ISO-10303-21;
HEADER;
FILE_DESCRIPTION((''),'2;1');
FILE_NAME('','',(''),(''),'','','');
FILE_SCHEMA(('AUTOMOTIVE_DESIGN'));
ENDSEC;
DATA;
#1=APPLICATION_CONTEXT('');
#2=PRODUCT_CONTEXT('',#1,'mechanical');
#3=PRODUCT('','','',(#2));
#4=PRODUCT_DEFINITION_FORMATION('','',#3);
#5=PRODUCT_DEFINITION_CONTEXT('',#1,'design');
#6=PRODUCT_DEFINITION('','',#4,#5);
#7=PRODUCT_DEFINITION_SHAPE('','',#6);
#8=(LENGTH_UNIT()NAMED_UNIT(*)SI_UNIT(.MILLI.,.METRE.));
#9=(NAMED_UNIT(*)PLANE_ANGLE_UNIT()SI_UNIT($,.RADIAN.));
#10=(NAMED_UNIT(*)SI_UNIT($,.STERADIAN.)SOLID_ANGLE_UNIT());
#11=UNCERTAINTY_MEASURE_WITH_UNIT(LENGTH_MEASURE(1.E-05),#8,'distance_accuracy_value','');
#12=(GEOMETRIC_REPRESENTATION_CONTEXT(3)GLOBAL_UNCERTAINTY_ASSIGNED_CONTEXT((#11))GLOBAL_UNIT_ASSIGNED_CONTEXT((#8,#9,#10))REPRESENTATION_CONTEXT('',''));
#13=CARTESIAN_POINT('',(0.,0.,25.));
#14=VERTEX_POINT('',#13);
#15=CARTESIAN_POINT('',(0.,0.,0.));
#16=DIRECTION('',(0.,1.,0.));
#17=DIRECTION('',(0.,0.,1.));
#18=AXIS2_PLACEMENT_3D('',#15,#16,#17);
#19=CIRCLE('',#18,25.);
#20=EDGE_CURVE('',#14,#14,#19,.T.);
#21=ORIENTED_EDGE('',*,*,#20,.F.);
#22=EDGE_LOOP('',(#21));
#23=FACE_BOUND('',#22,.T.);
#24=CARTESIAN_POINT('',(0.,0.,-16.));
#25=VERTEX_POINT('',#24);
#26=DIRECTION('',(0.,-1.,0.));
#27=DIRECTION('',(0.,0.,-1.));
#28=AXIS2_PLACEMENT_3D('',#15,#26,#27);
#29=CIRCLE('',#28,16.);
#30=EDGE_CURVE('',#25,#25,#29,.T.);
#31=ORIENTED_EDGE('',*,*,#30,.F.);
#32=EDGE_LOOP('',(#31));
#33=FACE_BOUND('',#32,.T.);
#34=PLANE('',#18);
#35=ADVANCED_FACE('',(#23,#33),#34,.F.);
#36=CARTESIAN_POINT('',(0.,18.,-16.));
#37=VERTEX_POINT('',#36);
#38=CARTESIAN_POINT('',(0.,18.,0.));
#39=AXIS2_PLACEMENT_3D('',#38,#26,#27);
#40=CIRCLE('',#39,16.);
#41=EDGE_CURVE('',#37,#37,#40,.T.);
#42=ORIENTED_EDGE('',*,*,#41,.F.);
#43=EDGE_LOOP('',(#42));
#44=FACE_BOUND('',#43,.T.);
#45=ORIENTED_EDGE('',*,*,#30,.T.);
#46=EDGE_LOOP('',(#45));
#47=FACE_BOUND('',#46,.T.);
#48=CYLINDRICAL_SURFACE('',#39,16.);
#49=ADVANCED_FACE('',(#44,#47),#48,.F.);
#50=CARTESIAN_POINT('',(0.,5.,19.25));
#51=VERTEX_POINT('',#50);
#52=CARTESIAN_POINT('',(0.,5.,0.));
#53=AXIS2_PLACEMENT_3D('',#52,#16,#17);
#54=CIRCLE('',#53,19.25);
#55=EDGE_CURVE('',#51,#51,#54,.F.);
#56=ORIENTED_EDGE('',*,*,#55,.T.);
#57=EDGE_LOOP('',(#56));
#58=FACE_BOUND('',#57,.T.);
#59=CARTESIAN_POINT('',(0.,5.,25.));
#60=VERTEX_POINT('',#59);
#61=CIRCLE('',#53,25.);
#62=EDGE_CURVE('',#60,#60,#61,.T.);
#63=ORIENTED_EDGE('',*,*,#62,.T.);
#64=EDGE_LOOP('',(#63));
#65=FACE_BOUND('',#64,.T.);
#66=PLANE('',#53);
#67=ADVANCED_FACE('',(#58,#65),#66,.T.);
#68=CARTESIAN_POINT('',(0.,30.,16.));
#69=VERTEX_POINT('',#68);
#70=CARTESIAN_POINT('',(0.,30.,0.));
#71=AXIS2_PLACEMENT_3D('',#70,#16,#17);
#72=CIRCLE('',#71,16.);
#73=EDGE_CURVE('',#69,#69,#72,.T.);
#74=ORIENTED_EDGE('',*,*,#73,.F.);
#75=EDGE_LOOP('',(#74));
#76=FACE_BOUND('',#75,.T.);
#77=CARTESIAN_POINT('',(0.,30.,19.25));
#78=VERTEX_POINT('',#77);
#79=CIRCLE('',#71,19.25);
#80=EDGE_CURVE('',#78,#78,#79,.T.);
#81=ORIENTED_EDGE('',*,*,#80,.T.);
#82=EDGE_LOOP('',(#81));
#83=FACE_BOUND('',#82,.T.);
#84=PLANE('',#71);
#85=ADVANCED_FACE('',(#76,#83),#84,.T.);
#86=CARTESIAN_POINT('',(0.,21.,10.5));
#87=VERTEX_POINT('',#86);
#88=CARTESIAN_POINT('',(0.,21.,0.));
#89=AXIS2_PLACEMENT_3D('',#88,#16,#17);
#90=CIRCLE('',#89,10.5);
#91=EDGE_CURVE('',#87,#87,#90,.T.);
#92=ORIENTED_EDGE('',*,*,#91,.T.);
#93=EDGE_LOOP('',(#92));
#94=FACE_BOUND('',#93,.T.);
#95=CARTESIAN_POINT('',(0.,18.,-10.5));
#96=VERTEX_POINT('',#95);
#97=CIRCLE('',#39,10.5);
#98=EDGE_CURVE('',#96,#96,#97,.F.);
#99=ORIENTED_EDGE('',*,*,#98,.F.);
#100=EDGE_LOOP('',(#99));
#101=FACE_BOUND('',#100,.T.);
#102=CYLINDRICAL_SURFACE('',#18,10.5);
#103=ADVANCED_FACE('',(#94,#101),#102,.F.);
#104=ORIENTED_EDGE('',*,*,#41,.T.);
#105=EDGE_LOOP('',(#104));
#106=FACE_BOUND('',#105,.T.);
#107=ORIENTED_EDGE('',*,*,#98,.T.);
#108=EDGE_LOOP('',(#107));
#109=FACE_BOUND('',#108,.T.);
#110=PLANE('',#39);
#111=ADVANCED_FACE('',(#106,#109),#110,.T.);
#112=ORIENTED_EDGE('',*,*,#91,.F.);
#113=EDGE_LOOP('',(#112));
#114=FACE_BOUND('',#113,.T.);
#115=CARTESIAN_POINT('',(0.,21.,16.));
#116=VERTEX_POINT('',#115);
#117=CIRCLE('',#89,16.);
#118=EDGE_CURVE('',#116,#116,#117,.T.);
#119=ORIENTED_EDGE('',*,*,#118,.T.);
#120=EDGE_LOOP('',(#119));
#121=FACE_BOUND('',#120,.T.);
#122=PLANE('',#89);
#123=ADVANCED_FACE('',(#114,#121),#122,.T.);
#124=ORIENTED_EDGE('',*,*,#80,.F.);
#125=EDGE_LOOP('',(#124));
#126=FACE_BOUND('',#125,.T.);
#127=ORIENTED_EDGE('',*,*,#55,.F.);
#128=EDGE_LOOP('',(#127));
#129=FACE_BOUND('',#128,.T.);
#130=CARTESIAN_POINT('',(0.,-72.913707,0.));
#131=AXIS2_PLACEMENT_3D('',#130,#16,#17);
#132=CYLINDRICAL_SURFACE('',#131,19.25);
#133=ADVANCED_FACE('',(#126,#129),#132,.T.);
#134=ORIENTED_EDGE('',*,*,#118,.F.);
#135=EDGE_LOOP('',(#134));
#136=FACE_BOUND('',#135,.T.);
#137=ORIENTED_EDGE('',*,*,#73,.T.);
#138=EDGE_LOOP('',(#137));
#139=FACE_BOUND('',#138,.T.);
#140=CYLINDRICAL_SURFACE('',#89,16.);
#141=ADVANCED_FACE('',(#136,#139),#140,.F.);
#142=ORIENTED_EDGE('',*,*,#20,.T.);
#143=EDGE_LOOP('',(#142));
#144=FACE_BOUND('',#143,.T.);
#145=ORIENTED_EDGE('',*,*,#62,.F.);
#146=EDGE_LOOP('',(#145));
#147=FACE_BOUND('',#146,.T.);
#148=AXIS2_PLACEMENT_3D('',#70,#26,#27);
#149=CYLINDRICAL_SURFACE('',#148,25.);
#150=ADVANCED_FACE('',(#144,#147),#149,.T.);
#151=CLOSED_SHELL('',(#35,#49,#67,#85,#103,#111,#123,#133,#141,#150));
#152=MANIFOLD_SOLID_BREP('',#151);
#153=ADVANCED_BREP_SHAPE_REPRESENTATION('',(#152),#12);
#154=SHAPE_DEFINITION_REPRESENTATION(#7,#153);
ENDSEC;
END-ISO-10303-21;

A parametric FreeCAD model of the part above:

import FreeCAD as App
import Part
import Sketcher

doc = App.newDocument("Part")
params = doc.addObject("Spreadsheet::Sheet", "Params")
for row, (alias, value) in enumerate([
    ("sketch1_diameter", "50 mm"),
    ("pad1_length", "30 mm"),
    ("sketch2_diameter", "38.5 mm"),
    ("pocket1_length", "25 mm"),
    ("sketch3_diameter", "32 mm"),
    ("pocket2_length", "9 mm"),
    ("sketch4_diameter", "21 mm"),
    ("sketch5_diameter", "32 mm"),
    ("pocket4_length", "18 mm"),
], start=1):
    params.set(f"A{row}", alias)
    params.set(f"B{row}", "=" + value)
    params.setAlias(f"B{row}", alias)

body = doc.addObject("PartDesign::Body", "Body")

sketch1 = body.newObject("Sketcher::SketchObject", "Sketch")
sketch1.AttachmentSupport = (doc.getObject("XZ_Plane"), [""])
sketch1.MapMode = "FlatFace"
sketch1.addGeometry(Part.Circle(App.Vector(0, 0, 0), App.Vector(0, 0, 1), 25), False)
sketch1.addConstraint(Sketcher.Constraint("Coincident", 0, 3, -1, 1))
sketch1.addConstraint(Sketcher.Constraint("Diameter", 0, 50.0))
sketch1.setExpression("Constraints[1]", "Params.sketch1_diameter")
pad1 = body.newObject("PartDesign::Pad", "Pad")
pad1.Profile = sketch1
pad1.setExpression("Length", "Params.pad1_length")
pad1.Reversed = True

sketch2 = body.newObject("Sketcher::SketchObject", "Sketch001")
sketch2.AttachmentSupport = (doc.getObject("XZ_Plane"), [""])
sketch2.MapMode = "FlatFace"
sketch2.AttachmentOffset = App.Placement(App.Vector(0, 0, -30), App.Rotation())
sketch2.addGeometry(Part.LineSegment(App.Vector(-34, -34, 0), App.Vector(-34, 34, 0)), False)
sketch2.addGeometry(Part.LineSegment(App.Vector(-34, 34, 0), App.Vector(34, 34, 0)), False)
sketch2.addGeometry(Part.LineSegment(App.Vector(34, 34, 0), App.Vector(34, -34, 0)), False)
sketch2.addGeometry(Part.LineSegment(App.Vector(34, -34, 0), App.Vector(-34, -34, 0)), False)
sketch2.addGeometry(Part.Circle(App.Vector(0, 0, 0), App.Vector(0, 0, 1), 19), False)
sketch2.addConstraint(Sketcher.Constraint("Coincident", 0, 2, 1, 1))
sketch2.addConstraint(Sketcher.Constraint("Coincident", 1, 2, 2, 1))
sketch2.addConstraint(Sketcher.Constraint("Coincident", 2, 2, 3, 1))
sketch2.addConstraint(Sketcher.Constraint("Coincident", 3, 2, 0, 1))
sketch2.addConstraint(Sketcher.Constraint("Vertical", 0))
sketch2.addConstraint(Sketcher.Constraint("Horizontal", 1))
sketch2.addConstraint(Sketcher.Constraint("Vertical", 2))
sketch2.addConstraint(Sketcher.Constraint("Horizontal", 3))
sketch2.addConstraint(Sketcher.Constraint("Coincident", 4, 3, -1, 1))
sketch2.addConstraint(Sketcher.Constraint("Symmetric", 0, 2, 2, 2, -1, 1))
sketch2.addConstraint(Sketcher.Constraint("Equal", 3, 0))
sketch2.addConstraint(Sketcher.Constraint("Diameter", 4, 38.5))
sketch2.addConstraint(Sketcher.Constraint("DistanceX", 1, 1, 1, 2, 67.362))
sketch2.setExpression("Constraints[11]", "Params.sketch2_diameter")
pocket1 = body.newObject("PartDesign::Pocket", "Pocket")
pocket1.Profile = sketch2
pocket1.setExpression("Length", "Params.pocket1_length")
pocket1.Reversed = True

sketch3 = body.newObject("Sketcher::SketchObject", "Sketch002")
sketch3.AttachmentSupport = (doc.getObject("XZ_Plane"), [""])
sketch3.MapMode = "FlatFace"
sketch3.AttachmentOffset = App.Placement(App.Vector(0, 0, -30), App.Rotation())
sketch3.addGeometry(Part.Circle(App.Vector(0, 0, 0), App.Vector(0, 0, 1), 16), False)
sketch3.addConstraint(Sketcher.Constraint("Coincident", 0, 3, -1, 1))
sketch3.addConstraint(Sketcher.Constraint("Diameter", 0, 32.0))
sketch3.setExpression("Constraints[1]", "Params.sketch3_diameter")
pocket2 = body.newObject("PartDesign::Pocket", "Pocket001")
pocket2.Profile = sketch3
pocket2.setExpression("Length", "Params.pocket2_length")
pocket2.Reversed = True

sketch4 = body.newObject("Sketcher::SketchObject", "Sketch003")
sketch4.AttachmentSupport = (doc.getObject("XZ_Plane"), [""])
sketch4.MapMode = "FlatFace"
sketch4.AttachmentOffset = App.Placement(App.Vector(0, 0, -21), App.Rotation())
sketch4.addGeometry(Part.Circle(App.Vector(0, 0, 0), App.Vector(0, 0, 1), 10), False)
sketch4.addConstraint(Sketcher.Constraint("Coincident", 0, 3, -1, 1))
sketch4.addConstraint(Sketcher.Constraint("Diameter", 0, 21.0))
sketch4.setExpression("Constraints[1]", "Params.sketch4_diameter")
pocket3 = body.newObject("PartDesign::Pocket", "Pocket002")
pocket3.Profile = sketch4
pocket3.Type = "ThroughAll"
pocket3.Reversed = True

sketch5 = body.newObject("Sketcher::SketchObject", "Sketch004")
sketch5.AttachmentSupport = (doc.getObject("XZ_Plane"), [""])
sketch5.MapMode = "FlatFace"
sketch5.addGeometry(Part.Circle(App.Vector(0, 0, 0), App.Vector(0, 0, 1), 16), False)
sketch5.addConstraint(Sketcher.Constraint("Coincident", 0, 3, -1, 1))
sketch5.addConstraint(Sketcher.Constraint("Diameter", 0, 32.0))
sketch5.setExpression("Constraints[1]", "Params.sketch5_diameter")
pocket4 = body.newObject("PartDesign::Pocket", "Pocket003")
pocket4.Profile = sketch5
pocket4.setExpression("Length", "Params.pocket4_length")

doc.recompute()
